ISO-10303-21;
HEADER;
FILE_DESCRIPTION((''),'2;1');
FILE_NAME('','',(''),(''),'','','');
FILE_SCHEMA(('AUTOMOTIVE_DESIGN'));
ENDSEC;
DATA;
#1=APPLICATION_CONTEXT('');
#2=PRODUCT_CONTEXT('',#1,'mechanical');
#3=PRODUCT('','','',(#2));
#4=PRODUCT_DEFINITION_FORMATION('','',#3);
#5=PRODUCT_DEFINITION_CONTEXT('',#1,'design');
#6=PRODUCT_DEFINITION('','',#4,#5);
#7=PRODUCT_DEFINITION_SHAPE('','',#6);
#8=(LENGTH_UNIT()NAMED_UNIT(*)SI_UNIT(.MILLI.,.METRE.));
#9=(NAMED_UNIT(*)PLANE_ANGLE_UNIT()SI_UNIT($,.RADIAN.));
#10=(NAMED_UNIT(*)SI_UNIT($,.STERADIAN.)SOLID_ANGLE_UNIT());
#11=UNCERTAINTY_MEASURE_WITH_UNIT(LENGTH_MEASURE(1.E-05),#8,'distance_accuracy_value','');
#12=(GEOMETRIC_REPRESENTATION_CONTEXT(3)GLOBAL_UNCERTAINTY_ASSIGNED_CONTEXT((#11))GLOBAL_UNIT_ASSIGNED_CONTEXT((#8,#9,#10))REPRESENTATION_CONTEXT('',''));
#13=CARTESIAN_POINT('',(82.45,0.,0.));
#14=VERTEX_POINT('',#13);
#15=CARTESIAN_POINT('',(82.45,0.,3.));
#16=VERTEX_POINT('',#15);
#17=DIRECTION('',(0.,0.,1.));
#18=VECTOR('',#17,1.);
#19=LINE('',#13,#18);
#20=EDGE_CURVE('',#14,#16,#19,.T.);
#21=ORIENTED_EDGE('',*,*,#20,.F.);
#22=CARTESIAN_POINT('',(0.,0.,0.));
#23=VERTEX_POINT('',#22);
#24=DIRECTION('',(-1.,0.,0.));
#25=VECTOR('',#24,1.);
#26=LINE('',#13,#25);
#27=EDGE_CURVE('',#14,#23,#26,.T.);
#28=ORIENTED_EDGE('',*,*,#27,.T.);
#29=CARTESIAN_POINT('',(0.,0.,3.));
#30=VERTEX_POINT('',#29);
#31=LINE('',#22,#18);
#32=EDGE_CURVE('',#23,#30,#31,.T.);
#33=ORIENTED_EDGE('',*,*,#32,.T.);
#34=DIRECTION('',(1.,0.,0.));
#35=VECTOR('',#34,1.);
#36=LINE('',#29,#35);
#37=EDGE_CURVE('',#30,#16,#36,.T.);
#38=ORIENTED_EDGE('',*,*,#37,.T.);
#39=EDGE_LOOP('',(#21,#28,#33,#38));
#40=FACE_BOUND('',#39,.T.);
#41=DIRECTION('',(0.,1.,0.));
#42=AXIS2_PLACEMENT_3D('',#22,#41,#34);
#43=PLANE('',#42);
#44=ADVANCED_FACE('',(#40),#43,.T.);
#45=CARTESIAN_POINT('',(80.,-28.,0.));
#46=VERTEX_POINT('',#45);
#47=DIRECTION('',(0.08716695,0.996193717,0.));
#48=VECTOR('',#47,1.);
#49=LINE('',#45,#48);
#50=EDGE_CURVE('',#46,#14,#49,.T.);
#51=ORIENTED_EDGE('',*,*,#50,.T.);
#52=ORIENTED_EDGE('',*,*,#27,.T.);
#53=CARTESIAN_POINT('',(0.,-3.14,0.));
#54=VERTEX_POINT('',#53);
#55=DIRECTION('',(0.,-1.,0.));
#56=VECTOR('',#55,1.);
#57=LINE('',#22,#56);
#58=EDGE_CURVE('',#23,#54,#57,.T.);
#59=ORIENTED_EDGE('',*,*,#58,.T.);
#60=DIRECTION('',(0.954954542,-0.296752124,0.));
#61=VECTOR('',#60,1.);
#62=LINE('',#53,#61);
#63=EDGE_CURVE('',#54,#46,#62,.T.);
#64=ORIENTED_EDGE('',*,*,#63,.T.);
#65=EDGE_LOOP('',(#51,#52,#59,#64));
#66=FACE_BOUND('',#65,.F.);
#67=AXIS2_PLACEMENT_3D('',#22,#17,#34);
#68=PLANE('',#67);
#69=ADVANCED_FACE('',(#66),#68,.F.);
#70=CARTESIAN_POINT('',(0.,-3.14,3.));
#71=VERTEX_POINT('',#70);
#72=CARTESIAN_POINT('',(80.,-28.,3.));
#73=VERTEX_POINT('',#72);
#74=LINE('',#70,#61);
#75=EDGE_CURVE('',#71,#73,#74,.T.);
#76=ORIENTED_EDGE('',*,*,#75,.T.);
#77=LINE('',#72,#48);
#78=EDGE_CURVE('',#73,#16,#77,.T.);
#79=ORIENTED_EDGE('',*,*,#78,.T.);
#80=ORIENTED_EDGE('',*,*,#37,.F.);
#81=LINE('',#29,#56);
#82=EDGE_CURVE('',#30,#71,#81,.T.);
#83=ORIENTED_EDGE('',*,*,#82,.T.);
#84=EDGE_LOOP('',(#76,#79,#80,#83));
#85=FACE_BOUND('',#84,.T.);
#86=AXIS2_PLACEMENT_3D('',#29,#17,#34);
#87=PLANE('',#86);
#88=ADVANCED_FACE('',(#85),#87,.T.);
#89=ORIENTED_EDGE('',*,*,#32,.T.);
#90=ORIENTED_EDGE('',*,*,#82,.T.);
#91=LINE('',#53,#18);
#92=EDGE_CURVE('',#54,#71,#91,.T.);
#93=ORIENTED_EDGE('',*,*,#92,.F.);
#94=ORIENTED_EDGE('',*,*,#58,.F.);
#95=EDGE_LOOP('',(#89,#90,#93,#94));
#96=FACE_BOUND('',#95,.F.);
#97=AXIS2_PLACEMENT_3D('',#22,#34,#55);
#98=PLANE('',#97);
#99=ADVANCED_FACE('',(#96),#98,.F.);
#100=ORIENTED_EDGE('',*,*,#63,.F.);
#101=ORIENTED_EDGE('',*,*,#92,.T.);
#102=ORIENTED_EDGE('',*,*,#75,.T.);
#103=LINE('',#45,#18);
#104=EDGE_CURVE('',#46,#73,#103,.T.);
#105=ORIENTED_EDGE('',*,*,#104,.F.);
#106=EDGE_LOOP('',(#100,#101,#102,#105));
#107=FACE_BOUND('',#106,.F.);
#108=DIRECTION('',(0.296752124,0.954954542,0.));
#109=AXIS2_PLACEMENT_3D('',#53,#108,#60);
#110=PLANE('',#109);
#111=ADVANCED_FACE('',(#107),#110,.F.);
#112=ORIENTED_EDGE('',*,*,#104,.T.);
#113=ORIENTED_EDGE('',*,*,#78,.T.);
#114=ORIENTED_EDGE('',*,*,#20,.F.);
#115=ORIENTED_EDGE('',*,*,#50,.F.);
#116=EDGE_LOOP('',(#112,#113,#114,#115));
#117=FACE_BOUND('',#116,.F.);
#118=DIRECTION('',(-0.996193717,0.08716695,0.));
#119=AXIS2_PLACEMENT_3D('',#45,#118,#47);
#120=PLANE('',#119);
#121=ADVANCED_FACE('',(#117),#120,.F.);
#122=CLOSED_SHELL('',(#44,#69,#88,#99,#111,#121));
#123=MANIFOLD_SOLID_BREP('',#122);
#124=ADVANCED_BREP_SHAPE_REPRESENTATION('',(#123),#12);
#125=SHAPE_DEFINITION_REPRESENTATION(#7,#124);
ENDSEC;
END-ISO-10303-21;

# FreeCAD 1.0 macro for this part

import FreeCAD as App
import Part
import Sketcher

V = App.Vector
Q = App.Units.Quantity

doc = App.newDocument("Part")
body = doc.addObject("PartDesign::Body", "Body")

# Sketch on XY plane
sketch1 = body.newObject("Sketcher::SketchObject", "Sketch")
sketch1.AttachmentSupport = (doc.getObject("XY_Plane"), [""])
sketch1.MapMode = "FlatFace"
sketch1.addGeometry([
    Part.LineSegment(V(0, 0, 0), V(0, -3.14, 0)),
    Part.LineSegment(V(0, -3.14, 0), V(80, -28, 0)),
    Part.LineSegment(V(80, -28, 0), V(82.45, 0, 0)),
    Part.LineSegment(V(82.45, 0, 0), V(0, 0, 0)),
], False)
sketch1.addConstraint([
    Sketcher.Constraint("Coincident", 0, 2, 1, 1),
    Sketcher.Constraint("Coincident", 1, 2, 2, 1),
    Sketcher.Constraint("Coincident", 2, 2, 3, 1),
    Sketcher.Constraint("Coincident", 3, 2, 0, 1),
    Sketcher.Constraint("Vertical", 0),
    Sketcher.Constraint("Horizontal", 3),
    Sketcher.Constraint("Coincident", 3, 2, -1, 1),
    Sketcher.Constraint("DistanceX", -1, 1, 1, 2, Q("80 mm")),
    Sketcher.Constraint("DistanceY", 1, 2, -1, 1, Q("28 mm")),
    Sketcher.Constraint("DistanceY", 0, 2, 0, 1, Q("3.14 mm")),
    Sketcher.Constraint("Angle", 2, Q("84.9994 deg")),
])
pad1 = body.newObject("PartDesign::Pad", "Pad")
pad1.Profile = sketch1
pad1.Length = 3

doc.recompute()
